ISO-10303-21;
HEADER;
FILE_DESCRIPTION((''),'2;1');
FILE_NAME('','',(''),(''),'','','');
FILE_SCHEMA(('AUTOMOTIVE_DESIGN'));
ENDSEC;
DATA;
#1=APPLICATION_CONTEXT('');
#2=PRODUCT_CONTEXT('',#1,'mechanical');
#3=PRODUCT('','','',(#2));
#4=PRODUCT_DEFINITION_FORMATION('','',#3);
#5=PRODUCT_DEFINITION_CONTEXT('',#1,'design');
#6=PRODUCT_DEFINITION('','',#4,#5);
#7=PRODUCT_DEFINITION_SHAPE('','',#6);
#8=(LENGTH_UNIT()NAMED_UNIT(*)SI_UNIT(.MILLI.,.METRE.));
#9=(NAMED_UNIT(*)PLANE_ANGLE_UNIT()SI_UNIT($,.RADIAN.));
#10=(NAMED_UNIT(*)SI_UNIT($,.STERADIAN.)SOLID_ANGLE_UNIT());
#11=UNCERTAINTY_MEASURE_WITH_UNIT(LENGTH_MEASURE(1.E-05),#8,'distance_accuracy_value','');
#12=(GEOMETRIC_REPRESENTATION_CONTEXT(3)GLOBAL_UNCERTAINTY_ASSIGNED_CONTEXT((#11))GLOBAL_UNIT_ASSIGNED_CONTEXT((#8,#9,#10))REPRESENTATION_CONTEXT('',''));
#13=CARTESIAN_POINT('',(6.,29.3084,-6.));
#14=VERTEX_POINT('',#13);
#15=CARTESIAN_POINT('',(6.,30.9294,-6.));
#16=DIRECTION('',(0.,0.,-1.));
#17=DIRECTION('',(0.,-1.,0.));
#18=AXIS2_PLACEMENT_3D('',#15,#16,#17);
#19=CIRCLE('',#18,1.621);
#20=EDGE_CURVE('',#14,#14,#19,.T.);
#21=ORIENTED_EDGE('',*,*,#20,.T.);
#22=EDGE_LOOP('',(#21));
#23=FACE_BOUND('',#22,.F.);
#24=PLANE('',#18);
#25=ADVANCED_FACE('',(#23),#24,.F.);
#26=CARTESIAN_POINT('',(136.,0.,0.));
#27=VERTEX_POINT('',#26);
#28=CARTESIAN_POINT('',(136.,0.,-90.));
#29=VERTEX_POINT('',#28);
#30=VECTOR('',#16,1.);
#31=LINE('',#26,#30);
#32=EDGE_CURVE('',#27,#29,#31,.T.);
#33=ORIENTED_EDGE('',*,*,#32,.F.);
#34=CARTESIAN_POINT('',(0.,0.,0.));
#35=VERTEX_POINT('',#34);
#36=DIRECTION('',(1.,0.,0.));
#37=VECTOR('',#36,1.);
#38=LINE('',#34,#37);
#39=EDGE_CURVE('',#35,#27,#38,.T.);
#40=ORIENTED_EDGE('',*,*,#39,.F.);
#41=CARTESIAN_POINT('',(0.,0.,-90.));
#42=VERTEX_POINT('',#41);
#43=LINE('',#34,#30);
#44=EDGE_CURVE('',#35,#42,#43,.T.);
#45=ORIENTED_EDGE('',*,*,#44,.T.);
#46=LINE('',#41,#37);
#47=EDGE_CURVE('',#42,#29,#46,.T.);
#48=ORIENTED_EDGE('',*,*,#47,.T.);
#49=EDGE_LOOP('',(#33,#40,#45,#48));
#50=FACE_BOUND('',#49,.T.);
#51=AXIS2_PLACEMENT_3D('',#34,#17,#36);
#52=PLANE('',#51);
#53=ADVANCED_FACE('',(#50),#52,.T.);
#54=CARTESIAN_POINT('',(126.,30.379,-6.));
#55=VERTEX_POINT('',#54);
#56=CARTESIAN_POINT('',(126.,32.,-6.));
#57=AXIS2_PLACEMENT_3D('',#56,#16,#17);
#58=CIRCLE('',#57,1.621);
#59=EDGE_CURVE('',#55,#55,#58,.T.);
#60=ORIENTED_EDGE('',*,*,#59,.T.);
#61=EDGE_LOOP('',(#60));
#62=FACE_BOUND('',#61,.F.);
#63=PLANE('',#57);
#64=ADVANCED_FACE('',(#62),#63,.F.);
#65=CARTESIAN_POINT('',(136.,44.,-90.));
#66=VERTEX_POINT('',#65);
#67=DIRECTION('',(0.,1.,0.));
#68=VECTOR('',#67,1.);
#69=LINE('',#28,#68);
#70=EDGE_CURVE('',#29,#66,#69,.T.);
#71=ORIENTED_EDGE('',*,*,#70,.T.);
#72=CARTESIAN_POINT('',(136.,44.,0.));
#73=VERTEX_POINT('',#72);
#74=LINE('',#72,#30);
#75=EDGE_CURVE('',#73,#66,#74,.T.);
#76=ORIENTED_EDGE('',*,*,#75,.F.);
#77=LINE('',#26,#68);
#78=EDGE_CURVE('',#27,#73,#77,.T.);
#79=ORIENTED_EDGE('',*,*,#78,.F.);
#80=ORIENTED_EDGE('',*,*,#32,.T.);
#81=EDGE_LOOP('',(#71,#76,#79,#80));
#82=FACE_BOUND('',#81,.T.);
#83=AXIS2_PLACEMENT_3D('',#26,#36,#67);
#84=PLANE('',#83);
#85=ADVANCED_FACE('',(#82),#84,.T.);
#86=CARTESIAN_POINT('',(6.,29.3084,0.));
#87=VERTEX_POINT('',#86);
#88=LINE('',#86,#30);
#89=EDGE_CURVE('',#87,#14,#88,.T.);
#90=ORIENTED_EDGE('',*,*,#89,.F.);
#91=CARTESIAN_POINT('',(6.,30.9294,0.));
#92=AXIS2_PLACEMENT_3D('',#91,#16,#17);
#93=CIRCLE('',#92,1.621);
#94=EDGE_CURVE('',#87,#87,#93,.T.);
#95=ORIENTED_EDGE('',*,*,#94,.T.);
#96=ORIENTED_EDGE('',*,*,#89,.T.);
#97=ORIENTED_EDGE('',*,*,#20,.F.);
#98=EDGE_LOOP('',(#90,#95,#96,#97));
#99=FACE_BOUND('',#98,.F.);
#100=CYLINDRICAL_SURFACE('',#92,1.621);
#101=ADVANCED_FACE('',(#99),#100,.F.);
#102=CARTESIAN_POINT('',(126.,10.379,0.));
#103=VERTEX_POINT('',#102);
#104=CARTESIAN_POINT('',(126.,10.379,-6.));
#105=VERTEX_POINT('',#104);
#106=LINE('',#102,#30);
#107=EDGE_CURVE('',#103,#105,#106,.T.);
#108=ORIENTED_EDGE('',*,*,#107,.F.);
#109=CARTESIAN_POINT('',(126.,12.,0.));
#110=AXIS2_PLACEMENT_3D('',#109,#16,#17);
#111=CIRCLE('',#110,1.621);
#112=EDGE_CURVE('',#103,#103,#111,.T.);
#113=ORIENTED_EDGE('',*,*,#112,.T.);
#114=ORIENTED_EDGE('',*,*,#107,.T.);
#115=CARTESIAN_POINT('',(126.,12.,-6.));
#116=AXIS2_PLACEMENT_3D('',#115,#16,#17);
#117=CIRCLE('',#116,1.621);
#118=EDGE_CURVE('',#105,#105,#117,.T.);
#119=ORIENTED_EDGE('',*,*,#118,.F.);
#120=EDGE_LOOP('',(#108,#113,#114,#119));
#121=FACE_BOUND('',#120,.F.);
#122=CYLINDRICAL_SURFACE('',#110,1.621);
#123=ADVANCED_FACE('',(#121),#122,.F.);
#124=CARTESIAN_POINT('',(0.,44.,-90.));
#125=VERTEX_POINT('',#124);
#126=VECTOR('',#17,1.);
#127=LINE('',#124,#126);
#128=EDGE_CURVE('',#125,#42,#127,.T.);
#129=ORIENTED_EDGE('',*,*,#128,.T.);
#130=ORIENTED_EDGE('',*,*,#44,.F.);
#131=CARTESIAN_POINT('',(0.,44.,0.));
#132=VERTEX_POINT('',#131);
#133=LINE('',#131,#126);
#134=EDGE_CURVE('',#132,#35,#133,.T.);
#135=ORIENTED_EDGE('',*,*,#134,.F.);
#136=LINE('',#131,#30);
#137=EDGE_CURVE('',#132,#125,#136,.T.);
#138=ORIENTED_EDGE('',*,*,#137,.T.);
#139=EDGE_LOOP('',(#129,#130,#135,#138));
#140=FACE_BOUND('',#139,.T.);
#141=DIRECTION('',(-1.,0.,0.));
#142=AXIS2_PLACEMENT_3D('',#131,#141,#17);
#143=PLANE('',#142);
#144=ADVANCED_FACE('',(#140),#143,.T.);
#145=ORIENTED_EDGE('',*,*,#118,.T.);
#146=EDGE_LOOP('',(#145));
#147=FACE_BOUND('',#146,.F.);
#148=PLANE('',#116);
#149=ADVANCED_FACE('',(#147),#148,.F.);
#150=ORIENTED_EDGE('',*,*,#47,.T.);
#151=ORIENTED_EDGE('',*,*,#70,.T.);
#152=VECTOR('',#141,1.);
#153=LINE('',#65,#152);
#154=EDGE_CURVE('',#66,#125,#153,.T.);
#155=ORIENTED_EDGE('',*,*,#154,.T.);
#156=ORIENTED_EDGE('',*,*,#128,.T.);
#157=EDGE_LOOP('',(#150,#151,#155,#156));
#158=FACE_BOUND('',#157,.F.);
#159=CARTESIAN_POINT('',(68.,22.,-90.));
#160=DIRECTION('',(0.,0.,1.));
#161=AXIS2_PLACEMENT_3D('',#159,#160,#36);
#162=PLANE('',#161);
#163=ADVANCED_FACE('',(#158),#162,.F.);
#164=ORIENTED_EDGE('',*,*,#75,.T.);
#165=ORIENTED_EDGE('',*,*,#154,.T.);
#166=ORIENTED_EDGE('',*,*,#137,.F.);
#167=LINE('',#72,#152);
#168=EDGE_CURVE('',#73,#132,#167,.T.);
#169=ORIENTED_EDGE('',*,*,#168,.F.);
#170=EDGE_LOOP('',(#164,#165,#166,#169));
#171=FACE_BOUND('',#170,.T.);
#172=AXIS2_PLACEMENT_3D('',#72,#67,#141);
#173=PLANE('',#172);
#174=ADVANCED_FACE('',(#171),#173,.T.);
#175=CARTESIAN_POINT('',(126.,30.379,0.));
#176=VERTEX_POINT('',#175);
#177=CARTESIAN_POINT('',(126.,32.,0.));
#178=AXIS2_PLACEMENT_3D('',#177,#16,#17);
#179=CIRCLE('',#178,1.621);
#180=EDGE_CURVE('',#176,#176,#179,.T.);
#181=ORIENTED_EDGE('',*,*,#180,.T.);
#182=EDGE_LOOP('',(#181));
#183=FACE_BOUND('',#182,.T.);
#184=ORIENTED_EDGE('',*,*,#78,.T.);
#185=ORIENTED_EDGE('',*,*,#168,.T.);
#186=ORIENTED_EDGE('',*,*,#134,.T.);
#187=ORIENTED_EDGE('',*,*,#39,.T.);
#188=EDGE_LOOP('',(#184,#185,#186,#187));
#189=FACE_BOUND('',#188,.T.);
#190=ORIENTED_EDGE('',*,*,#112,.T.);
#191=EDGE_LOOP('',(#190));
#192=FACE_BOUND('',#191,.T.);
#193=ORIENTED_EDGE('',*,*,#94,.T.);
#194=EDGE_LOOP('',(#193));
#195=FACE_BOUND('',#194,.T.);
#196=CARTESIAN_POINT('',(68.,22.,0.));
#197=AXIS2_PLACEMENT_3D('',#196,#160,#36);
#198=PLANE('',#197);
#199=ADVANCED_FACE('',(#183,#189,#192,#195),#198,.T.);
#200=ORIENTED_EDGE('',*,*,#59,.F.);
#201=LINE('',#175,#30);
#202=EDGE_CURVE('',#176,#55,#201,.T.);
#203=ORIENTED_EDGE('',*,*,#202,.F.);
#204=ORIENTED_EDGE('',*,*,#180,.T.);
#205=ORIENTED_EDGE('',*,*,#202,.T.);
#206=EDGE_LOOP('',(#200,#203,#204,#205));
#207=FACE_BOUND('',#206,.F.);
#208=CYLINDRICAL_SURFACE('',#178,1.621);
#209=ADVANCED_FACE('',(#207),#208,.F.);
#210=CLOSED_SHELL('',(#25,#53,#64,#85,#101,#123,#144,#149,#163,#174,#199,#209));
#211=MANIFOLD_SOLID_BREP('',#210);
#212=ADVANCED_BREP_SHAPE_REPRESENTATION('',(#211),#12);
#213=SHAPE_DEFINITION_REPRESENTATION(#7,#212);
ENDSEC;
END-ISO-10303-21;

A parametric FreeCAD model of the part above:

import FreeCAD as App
import Part
import Sketcher

V = App.Vector
Q = App.Units.Quantity

doc = App.newDocument("Part")
body = doc.addObject("PartDesign::Body", "Body")

sketch1 = body.newObject("Sketcher::SketchObject", "Sketch")
sketch1.AttachmentSupport = (doc.getObject("XY_Plane"), [""])
sketch1.MapMode = "FlatFace"
sketch1.addGeometry([
    Part.LineSegment(V(136, 0, 0), V(136, 44, 0)),
    Part.LineSegment(V(136, 44, 0), V(0, 44, 0)),
    Part.LineSegment(V(0, 44, 0), V(0, 0, 0)),
    Part.LineSegment(V(0, 0, 0), V(136, 0, 0)),
], False)
sketch1.addConstraint([
    Sketcher.Constraint("Coincident", 0, 2, 1, 1),
    Sketcher.Constraint("Coincident", 1, 2, 2, 1),
    Sketcher.Constraint("Coincident", 2, 2, 3, 1),
    Sketcher.Constraint("Coincident", 3, 2, 0, 1),
    Sketcher.Constraint("Vertical", 0),
    Sketcher.Constraint("Horizontal", 1),
    Sketcher.Constraint("Vertical", 2),
    Sketcher.Constraint("Horizontal", 3),
    Sketcher.Constraint("Coincident", 2, 2, -1, 1),
    Sketcher.Constraint("DistanceX", 1, 2, 1, 1, Q("136 mm")),
    Sketcher.Constraint("DistanceY", 0, 1, 0, 2, Q("44 mm")),
])
pad1 = body.newObject("PartDesign::Pad", "Pad")
pad1.Profile = sketch1
pad1.Length = 90
pad1.Reversed = True

sketch2 = body.newObject("Sketcher::SketchObject", "Sketch001")
sketch2.AttachmentSupport = (doc.getObject("XY_Plane"), [""])
sketch2.MapMode = "FlatFace"
sketch2.addGeometry(Part.Circle(V(6, 30.9, 0), V(0, 0, 1), 1.6), False)
sketch2.addConstraint([
    Sketcher.Constraint("Diameter", 0, Q("3.242 mm")),
    Sketcher.Constraint("DistanceX", -1, 1, 0, 3, Q("6 mm")),
    Sketcher.Constraint("DistanceY", -1, 1, 0, 3, Q("30.9294 mm")),
])
doc.recompute()
hole = body.newObject("PartDesign::Hole", "Hole")
hole.Profile = sketch2
hole.ThreadType = "None"
hole.Diameter = 3.242
hole.DepthType = "Dimension"
hole.Depth = 6
hole.DrillPoint = "Flat"

sketch3 = body.newObject("Sketcher::SketchObject", "Sketch002")
sketch3.AttachmentSupport = (doc.getObject("XY_Plane"), [""])
sketch3.MapMode = "FlatFace"
sketch3.addGeometry(Part.Circle(V(126, 32, 0), V(0, 0, 1), 1.6), False)
sketch3.addConstraint([
    Sketcher.Constraint("Diameter", 0, Q("3.242 mm")),
    Sketcher.Constraint("DistanceX", -1, 1, 0, 3, Q("126 mm")),
    Sketcher.Constraint("DistanceY", -1, 1, 0, 3, Q("32 mm")),
])
doc.recompute()
hole2 = body.newObject("PartDesign::Hole", "Hole001")
hole2.Profile = sketch3
hole2.ThreadType = "None"
hole2.Diameter = 3.242
hole2.DepthType = "Dimension"
hole2.Depth = 6
hole2.DrillPoint = "Flat"

sketch4 = body.newObject("Sketcher::SketchObject", "Sketch003")
sketch4.AttachmentSupport = (doc.getObject("XY_Plane"), [""])
sketch4.MapMode = "FlatFace"
sketch4.addGeometry(Part.Circle(V(126, 12, 0), V(0, 0, 1), 1.6), False)
sketch4.addConstraint([
    Sketcher.Constraint("Diameter", 0, Q("3.242 mm")),
    Sketcher.Constraint("DistanceX", -1, 1, 0, 3, Q("126 mm")),
    Sketcher.Constraint("DistanceY", -1, 1, 0, 3, Q("12 mm")),
])
doc.recompute()
hole3 = body.newObject("PartDesign::Hole", "Hole002")
hole3.Profile = sketch4
hole3.ThreadType = "None"
hole3.Diameter = 3.242
hole3.DepthType = "Dimension"
hole3.Depth = 6
hole3.DrillPoint = "Flat"

doc.recompute()
